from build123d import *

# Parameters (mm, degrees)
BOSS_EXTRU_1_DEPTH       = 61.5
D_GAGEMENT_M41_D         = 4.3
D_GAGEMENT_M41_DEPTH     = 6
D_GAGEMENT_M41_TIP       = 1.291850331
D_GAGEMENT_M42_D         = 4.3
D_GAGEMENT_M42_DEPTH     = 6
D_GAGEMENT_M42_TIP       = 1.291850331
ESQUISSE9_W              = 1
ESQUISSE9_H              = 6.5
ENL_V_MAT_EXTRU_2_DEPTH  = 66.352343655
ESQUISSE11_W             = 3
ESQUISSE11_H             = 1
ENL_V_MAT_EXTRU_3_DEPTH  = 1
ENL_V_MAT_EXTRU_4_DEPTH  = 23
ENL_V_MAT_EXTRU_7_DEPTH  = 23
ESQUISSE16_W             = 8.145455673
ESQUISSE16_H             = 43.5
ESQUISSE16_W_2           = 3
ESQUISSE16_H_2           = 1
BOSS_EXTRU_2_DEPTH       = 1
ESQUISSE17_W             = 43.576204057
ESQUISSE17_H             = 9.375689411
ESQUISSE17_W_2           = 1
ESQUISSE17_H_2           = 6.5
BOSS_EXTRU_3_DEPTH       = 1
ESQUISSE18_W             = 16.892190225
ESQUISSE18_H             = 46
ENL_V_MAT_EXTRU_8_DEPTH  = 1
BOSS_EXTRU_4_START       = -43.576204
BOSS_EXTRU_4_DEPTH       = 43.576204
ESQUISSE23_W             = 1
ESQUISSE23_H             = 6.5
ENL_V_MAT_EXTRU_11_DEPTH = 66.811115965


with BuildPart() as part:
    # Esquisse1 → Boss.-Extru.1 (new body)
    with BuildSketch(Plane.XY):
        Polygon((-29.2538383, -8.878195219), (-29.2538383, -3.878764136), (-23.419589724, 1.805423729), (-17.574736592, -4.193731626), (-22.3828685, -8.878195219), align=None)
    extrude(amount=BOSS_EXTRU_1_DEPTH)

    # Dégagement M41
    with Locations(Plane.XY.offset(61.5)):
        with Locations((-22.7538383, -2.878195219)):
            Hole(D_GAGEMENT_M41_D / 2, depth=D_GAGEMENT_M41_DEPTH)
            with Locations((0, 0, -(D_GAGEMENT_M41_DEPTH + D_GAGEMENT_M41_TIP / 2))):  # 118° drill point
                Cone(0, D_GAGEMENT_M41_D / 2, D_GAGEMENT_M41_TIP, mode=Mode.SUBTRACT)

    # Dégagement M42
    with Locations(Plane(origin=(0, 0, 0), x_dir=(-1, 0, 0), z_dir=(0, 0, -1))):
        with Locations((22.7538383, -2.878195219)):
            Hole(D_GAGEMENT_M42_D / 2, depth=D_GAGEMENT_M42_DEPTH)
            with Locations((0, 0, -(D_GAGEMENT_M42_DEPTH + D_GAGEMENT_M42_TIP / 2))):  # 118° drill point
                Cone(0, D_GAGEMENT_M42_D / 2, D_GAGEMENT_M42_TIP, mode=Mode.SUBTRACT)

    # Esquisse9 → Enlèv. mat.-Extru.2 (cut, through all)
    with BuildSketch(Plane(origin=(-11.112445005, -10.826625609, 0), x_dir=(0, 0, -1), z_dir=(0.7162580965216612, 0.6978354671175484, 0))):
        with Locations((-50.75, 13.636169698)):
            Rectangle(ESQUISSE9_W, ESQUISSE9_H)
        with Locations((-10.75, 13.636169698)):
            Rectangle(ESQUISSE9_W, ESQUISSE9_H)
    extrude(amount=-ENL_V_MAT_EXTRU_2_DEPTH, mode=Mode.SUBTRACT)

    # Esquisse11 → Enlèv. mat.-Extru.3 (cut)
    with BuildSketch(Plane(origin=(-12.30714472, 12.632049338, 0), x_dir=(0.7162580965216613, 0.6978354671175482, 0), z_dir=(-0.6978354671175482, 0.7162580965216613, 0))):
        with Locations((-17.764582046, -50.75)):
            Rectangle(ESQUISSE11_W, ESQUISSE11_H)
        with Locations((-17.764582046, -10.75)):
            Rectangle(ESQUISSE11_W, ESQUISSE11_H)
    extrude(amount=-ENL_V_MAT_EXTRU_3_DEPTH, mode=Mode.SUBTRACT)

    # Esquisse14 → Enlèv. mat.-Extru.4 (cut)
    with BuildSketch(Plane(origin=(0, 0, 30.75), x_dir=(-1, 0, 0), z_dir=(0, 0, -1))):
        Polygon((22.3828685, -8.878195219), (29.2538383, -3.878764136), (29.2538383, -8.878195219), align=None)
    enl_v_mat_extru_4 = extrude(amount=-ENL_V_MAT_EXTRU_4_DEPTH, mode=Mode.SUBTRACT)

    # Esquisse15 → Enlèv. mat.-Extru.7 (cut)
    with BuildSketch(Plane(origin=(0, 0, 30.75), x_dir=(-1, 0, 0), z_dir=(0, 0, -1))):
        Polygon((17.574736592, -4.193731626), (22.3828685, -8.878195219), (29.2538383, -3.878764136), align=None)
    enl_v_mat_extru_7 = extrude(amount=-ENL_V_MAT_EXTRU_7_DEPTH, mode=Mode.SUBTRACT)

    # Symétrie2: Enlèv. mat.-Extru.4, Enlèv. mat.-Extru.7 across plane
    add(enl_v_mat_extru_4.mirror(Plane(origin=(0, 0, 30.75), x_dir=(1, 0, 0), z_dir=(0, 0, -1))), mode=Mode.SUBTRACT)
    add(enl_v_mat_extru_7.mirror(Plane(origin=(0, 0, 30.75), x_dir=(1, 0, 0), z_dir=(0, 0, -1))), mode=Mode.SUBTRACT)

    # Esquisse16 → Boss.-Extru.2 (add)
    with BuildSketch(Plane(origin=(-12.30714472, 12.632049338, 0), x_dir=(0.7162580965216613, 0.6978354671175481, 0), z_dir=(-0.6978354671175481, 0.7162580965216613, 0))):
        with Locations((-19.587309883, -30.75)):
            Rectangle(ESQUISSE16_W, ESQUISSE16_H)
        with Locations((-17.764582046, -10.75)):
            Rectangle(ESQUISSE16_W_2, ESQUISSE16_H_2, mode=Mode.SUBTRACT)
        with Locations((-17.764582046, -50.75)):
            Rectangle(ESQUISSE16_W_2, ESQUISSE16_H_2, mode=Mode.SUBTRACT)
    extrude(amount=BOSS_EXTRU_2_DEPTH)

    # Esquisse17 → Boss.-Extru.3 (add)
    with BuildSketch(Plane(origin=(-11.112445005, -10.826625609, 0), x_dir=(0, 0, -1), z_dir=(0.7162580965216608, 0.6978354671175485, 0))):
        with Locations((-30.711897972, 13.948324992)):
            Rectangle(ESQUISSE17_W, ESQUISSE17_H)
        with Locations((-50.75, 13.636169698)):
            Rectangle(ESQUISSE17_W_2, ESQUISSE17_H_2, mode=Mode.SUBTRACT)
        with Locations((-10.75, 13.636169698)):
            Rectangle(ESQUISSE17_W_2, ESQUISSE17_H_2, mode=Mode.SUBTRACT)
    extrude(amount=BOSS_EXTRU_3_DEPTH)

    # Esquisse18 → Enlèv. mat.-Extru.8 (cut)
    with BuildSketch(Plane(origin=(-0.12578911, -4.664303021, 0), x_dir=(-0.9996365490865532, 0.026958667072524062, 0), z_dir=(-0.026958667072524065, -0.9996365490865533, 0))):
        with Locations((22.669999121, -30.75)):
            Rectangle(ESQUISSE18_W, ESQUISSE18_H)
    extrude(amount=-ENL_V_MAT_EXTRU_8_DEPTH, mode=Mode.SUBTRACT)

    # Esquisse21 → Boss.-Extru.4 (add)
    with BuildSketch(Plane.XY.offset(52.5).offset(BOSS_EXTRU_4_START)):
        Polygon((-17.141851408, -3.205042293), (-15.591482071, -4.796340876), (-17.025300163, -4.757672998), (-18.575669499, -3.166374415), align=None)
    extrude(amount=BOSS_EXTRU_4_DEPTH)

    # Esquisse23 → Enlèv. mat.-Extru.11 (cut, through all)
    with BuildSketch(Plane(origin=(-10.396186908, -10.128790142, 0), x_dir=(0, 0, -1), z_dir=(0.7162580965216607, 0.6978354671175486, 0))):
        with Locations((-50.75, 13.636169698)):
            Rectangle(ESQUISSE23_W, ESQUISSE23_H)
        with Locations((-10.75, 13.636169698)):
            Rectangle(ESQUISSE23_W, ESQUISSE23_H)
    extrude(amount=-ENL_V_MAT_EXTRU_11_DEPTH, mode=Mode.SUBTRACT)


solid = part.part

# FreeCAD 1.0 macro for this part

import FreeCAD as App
import Part
import Sketcher

V = App.Vector


def add_polygon(sketch, points):
    """Adds a closed chain of lines whose ends are joined by coincident constraints."""
    first, n = sketch.GeometryCount, len(points)
    for a, b in zip(points, points[1:] + points[:1]):
        sketch.addGeometry(Part.LineSegment(App.Vector(*a, 0), App.Vector(*b, 0)), False)
    for i in range(n):
        sketch.addConstraint(Sketcher.Constraint("Coincident", first + i, 2, first + (i + 1) % n, 1))

doc = App.newDocument("Part")
body = doc.addObject("PartDesign::Body", "Body")

# Sketch on XY plane
sketch1 = doc.addObject("Sketcher::SketchObject", "Sketch")
body.addObject(sketch1)
sketch1.AttachmentSupport = (doc.XY_Plane, [""])
sketch1.MapMode = "FlatFace"
add_polygon(sketch1, [(-29.3, -3.9), (-29.3, -8.9), (-22.4, -8.9), (-17.6, -4.2), (-23.4, 1.8)])  # lines 0-4
sketch1.addConstraint([
    Sketcher.Constraint("Vertical", 0),
    Sketcher.Constraint("Horizontal", 1),
    Sketcher.Constraint("Perpendicular", 2, 3),
    Sketcher.Constraint("Perpendicular", 3, 4),
    Sketcher.Constraint("DistanceX", 1, 1, 1, 2, 6.87097),
    Sketcher.Constraint("DistanceY", 0, 2, 0, 1, 4.999431),
    Sketcher.Constraint("DistanceX", 0, 2, 2, 2, 11.679102),
    Sketcher.Constraint("Distance", 2, 6.712848),
    Sketcher.Constraint("DistanceX", 0, 2, -1, 1, 29.253838),
    Sketcher.Constraint("DistanceY", 2, 2, -1, 1, 4.193732),
])
pad1 = doc.addObject("PartDesign::Pad", "Pad")
body.addObject(pad1)
pad1.Profile = sketch1
pad1.Length = 61.5

# Sketch on XY plane
sketch2 = doc.addObject("Sketcher::SketchObject", "Sketch001")
body.addObject(sketch2)
sketch2.AttachmentSupport = (doc.XY_Plane, [""])
sketch2.MapMode = "FlatFace"
sketch2.AttachmentOffset = App.Placement(V(0, 0, 61.5), App.Rotation())
sketch2.addGeometry(Part.Circle(V(-22.8, -2.9, 0), V(0, 0, 1), 2.1), False)
sketch2.addConstraint([
    Sketcher.Constraint("Diameter", 0, 4.3),
    Sketcher.Constraint("DistanceX", 0, 3, -1, 1, 22.753838),
    Sketcher.Constraint("DistanceY", 0, 3, -1, 1, 2.878195),
])
doc.recompute()
hole = doc.addObject("PartDesign::Hole", "Hole")
body.addObject(hole)
hole.Profile = sketch2
hole.ThreadType = "None"
hole.Diameter = 4.3
hole.DepthType = "Dimension"
hole.Depth = 6
hole.DrillPoint = "Angled"
hole.DrillPointAngle = 118

# Sketch on XY plane
sketch3 = doc.addObject("Sketcher::SketchObject", "Sketch002")
body.addObject(sketch3)
sketch3.AttachmentSupport = (doc.XY_Plane, [""])
sketch3.MapMode = "FlatFace"
sketch3.addGeometry(Part.Circle(V(-22.8, -2.9, 0), V(0, 0, 1), 2.1), False)
sketch3.addConstraint([
    Sketcher.Constraint("Diameter", 0, 4.3),
    Sketcher.Constraint("DistanceX", 0, 3, -1, 1, 22.753838),
    Sketcher.Constraint("DistanceY", 0, 3, -1, 1, 2.878195),
])
doc.recompute()
hole2 = doc.addObject("PartDesign::Hole", "Hole001")
body.addObject(hole2)
hole2.Profile = sketch3
hole2.ThreadType = "None"
hole2.Diameter = 4.3
hole2.DepthType = "Dimension"
hole2.Depth = 6
hole2.DrillPoint = "Angled"
hole2.DrillPointAngle = 118
hole2.Reversed = True

# Sketch on an angled plane
sketch4 = doc.addObject("Sketcher::SketchObject", "Sketch003")
body.addObject(sketch4)
sketch4.Placement = App.Placement(V(-11.112445, -10.826626, 0), App.Rotation(V(0, 0, -1), V(-0.697835467, 0.716258097, 0), V(0.716258097, 0.697835467, 0), "ZXY"))
add_polygon(sketch4, [(-51.2, 16.9), (-51.2, 10.4), (-50.2, 10.4), (-50.2, 16.9)])  # lines 0-3
add_polygon(sketch4, [(-11.2, 16.9), (-11.2, 10.4), (-10.2, 10.4), (-10.2, 16.9)])  # lines 4-7
sketch4.addConstraint([
    Sketcher.Constraint("Vertical", 0),
    Sketcher.Constraint("Horizontal", 1),
    Sketcher.Constraint("Vertical", 2),
    Sketcher.Constraint("Horizontal", 3),
    Sketcher.Constraint("Vertical", 4),
    Sketcher.Constraint("Horizontal", 5),
    Sketcher.Constraint("Vertical", 6),
    Sketcher.Constraint("Horizontal", 7),
    Sketcher.Constraint("Horizontal", 1, 2, 4, 2),
    Sketcher.Constraint("Horizontal", 3, 2, 6, 2),
    Sketcher.Constraint("Equal", 3, 5),
    Sketcher.Constraint("DistanceX", 1, 1, 1, 2, 1.0),
    Sketcher.Constraint("DistanceY", 0, 2, 0, 1, 6.5),
    Sketcher.Constraint("DistanceX", 1, 2, 4, 2, 39.0),
    Sketcher.Constraint("DistanceX", 0, 2, -1, 1, 51.25),
    Sketcher.Constraint("DistanceY", -1, 1, 0, 2, 10.38617),
])
pocket1 = doc.addObject("PartDesign::Pocket", "Pocket")
body.addObject(pocket1)
pocket1.Profile = sketch4
pocket1.Type = "ThroughAll"

# Sketch on an angled plane
sketch5 = doc.addObject("Sketcher::SketchObject", "Sketch004")
body.addObject(sketch5)
sketch5.Placement = App.Placement(V(-12.307145, 12.632049, 0), App.Rotation(V(0.716258097, 0.697835467, 0), V(0, 0, -1.000000001), V(-0.697835467, 0.716258097, 0), "ZXY"))
add_polygon(sketch5, [(-19.3, -50.3), (-19.3, -51.3), (-16.3, -51.3), (-16.3, -50.3)])  # lines 0-3
add_polygon(sketch5, [(-19.3, -10.3), (-19.3, -11.3), (-16.3, -11.3), (-16.3, -10.3)])  # lines 4-7
sketch5.addConstraint([
    Sketcher.Constraint("Vertical", 0),
    Sketcher.Constraint("Horizontal", 1),
    Sketcher.Constraint("Vertical", 2),
    Sketcher.Constraint("Horizontal", 3),
    Sketcher.Constraint("Vertical", 4),
    Sketcher.Constraint("Horizontal", 5),
    Sketcher.Constraint("Vertical", 6),
    Sketcher.Constraint("Horizontal", 7),
    Sketcher.Constraint("Vertical", 3, 2, 4, 2),
    Sketcher.Constraint("Vertical", 2, 2, 5, 2),
    Sketcher.Constraint("Equal", 2, 4),
    Sketcher.Constraint("DistanceX", 1, 1, 1, 2, 3.0),
    Sketcher.Constraint("DistanceY", 0, 2, 0, 1, 1.0),
    Sketcher.Constraint("DistanceY", 3, 2, 4, 2, 39.0),
    Sketcher.Constraint("DistanceY", 0, 2, -1, 1, 51.25),
    Sketcher.Constraint("DistanceX", 0, 2, -1, 1, 19.264582),
])
pocket2 = doc.addObject("PartDesign::Pocket", "Pocket001")
body.addObject(pocket2)
pocket2.Profile = sketch5
pocket2.Length = 1

# Sketch on XY plane
sketch6 = doc.addObject("Sketcher::SketchObject", "Sketch005")
body.addObject(sketch6)
sketch6.AttachmentSupport = (doc.XY_Plane, [""])
sketch6.MapMode = "FlatFace"
sketch6.AttachmentOffset = App.Placement(V(0, 0, 30.75), App.Rotation())
add_polygon(sketch6, [(-29.3, -3.9), (-22.4, -8.9), (-29.3, -8.9)])  # lines 0-2
sketch6.addConstraint([
    Sketcher.Constraint("Horizontal", 1),
    Sketcher.Constraint("Vertical", 2),
    Sketcher.Constraint("DistanceX", 1, 2, 1, 1, 6.87097),
    Sketcher.Constraint("DistanceY", 2, 1, 2, 2, 4.999431),
    Sketcher.Constraint("DistanceX", 0, 2, -1, 1, 22.382869),
    Sketcher.Constraint("DistanceY", 0, 2, -1, 1, 8.878195),
])
pocket3 = doc.addObject("PartDesign::Pocket", "Pocket002")
body.addObject(pocket3)
pocket3.Profile = sketch6
pocket3.Length = 23
pocket3.Reversed = True

# Sketch on XY plane
sketch7 = doc.addObject("Sketcher::SketchObject", "Sketch006")
body.addObject(sketch7)
sketch7.AttachmentSupport = (doc.XY_Plane, [""])
sketch7.MapMode = "FlatFace"
sketch7.AttachmentOffset = App.Placement(V(0, 0, 30.75), App.Rotation())
add_polygon(sketch7, [(-17.574737, -4.193732), (-22.382869, -8.878195), (-29.253838, -3.878764)])  # lines 0-2
sketch7.addConstraint([
    Sketcher.Constraint("DistanceX", 1, 2, 2, 2, 11.679102),
    Sketcher.Constraint("Distance", 0, 6.712848),
    Sketcher.Constraint("Distance", 2, 11.683348),
    Sketcher.Constraint("DistanceX", 0, 2, -1, 1, 22.382869),
    Sketcher.Constraint("DistanceX", 1, 2, -1, 1, 29.253838),
    Sketcher.Constraint("DistanceY", 2, 2, -1, 1, 4.193732),
])
pocket4 = doc.addObject("PartDesign::Pocket", "Pocket003")
body.addObject(pocket4)
pocket4.Profile = sketch7
pocket4.Length = 23
pocket4.Reversed = True
doc.recompute()

datumplane = doc.addObject("PartDesign::Plane", "DatumPlane")
body.addObject(datumplane)
datumplane.AttachmentSupport = (doc.XY_Plane, [""])
datumplane.MapMode = "FlatFace"
datumplane.AttachmentOffset = App.Placement(V(0, 0, 30.75), App.Rotation())
mirrored = doc.addObject("PartDesign::Mirrored", "Mirrored")
body.addObject(mirrored)
mirrored.Originals = [pocket3, pocket4]
mirrored.MirrorPlane = (datumplane, [""])
body.Tip = mirrored

# Sketch on an angled plane
sketch8 = doc.addObject("Sketcher::SketchObject", "Sketch007")
body.addObject(sketch8)
sketch8.Placement = App.Placement(V(-12.307145, 12.632049, 0), App.Rotation(V(0.716258097, 0.697835467, 0), V(0, 0, -1.000000001), V(-0.697835467, 0.716258097, 0), "ZXY"))
add_polygon(sketch8, [(-23.7, -9), (-23.7, -52.5), (-15.5, -52.5), (-15.5, -9)])  # lines 0-3
add_polygon(sketch8, [(-16.3, -51.3), (-19.3, -51.3), (-19.3, -50.3), (-16.3, -50.3)])  # lines 4-7
add_polygon(sketch8, [(-16.3, -11.3), (-19.3, -11.3), (-19.3, -10.3), (-16.3, -10.3)])  # lines 8-11
sketch8.addConstraint([
    Sketcher.Constraint("Vertical", 0),
    Sketcher.Constraint("Horizontal", 1),
    Sketcher.Constraint("Vertical", 2),
    Sketcher.Constraint("Horizontal", 3),
    Sketcher.Constraint("Horizontal", 4),
    Sketcher.Constraint("Vertical", 5),
    Sketcher.Constraint("Horizontal", 6),
    Sketcher.Constraint("Vertical", 7),
    Sketcher.Constraint("Horizontal", 8),
    Sketcher.Constraint("Vertical", 9),
    Sketcher.Constraint("Horizontal", 10),
    Sketcher.Constraint("Vertical", 11),
    Sketcher.Constraint("Vertical", 5, 2, 8, 2),
    Sketcher.Constraint("Vertical", 7, 2, 10, 2),
    Sketcher.Constraint("Equal", 7, 9),
    Sketcher.Constraint("DistanceX", 4, 2, 4, 1, 3.0),
    Sketcher.Constraint("DistanceY", 5, 1, 5, 2, 1.0),
    Sketcher.Constraint("DistanceY", 0, 2, 0, 1, 43.5),
    Sketcher.Constraint("DistanceY", 2, 2, -1, 1, 9.0),
    Sketcher.Constraint("DistanceY", 5, 2, 8, 2, 39.0),
    Sketcher.Constraint("DistanceY", 4, 2, -1, 1, 51.25),
    Sketcher.Constraint("DistanceX", 4, 2, 1, 2, 3.75),
    Sketcher.Constraint("DistanceX", 1, 1, 1, 2, 8.145456),
    Sketcher.Constraint("DistanceX", 0, 2, -1, 1, 23.660038),
])
pad2 = doc.addObject("PartDesign::Pad", "Pad001")
body.addObject(pad2)
pad2.Profile = sketch8
pad2.Length = 1

# Sketch on an angled plane
sketch9 = doc.addObject("Sketcher::SketchObject", "Sketch008")
body.addObject(sketch9)
sketch9.Placement = App.Placement(V(-11.112445, -10.826626, 0), App.Rotation(V(0, 0, -1), V(-0.697835467, 0.716258097, 0), V(0.716258097, 0.697835467, 0), "ZXY"))
add_polygon(sketch9, [(-52.5, 18.6), (-52.5, 9.3), (-8.9, 9.3), (-8.9, 18.6)])  # lines 0-3
add_polygon(sketch9, [(-50.2, 10.4), (-51.2, 10.4), (-51.2, 16.9), (-50.2, 16.9)])  # lines 4-7
add_polygon(sketch9, [(-10.2, 10.4), (-11.2, 10.4), (-11.2, 16.9), (-10.2, 16.9)])  # lines 8-11
sketch9.addConstraint([
    Sketcher.Constraint("Vertical", 0),
    Sketcher.Constraint("Horizontal", 1),
    Sketcher.Constraint("Vertical", 2),
    Sketcher.Constraint("Horizontal", 3),
    Sketcher.Constraint("Horizontal", 4),
    Sketcher.Constraint("Vertical", 5),
    Sketcher.Constraint("Horizontal", 6),
    Sketcher.Constraint("Vertical", 7),
    Sketcher.Constraint("Horizontal", 8),
    Sketcher.Constraint("Vertical", 9),
    Sketcher.Constraint("Horizontal", 10),
    Sketcher.Constraint("Vertical", 11),
    Sketcher.Constraint("Horizontal", 7, 2, 8, 2),
    Sketcher.Constraint("Horizontal", 6, 2, 9, 2),
    Sketcher.Constraint("Equal", 6, 8),
    Sketcher.Constraint("DistanceX", 4, 2, 4, 1, 1.0),
    Sketcher.Constraint("DistanceY", 5, 1, 5, 2, 6.5),
    Sketcher.Constraint("DistanceX", 7, 2, 8, 2, 39.0),
    Sketcher.Constraint("DistanceX", 0, 2, -1, 1, 52.5),
    Sketcher.Constraint("DistanceX", 4, 2, -1, 1, 51.25),
    Sketcher.Constraint("DistanceY", 4, 2, 3, 2, 8.25),
    Sketcher.Constraint("DistanceY", 0, 2, 0, 1, 9.375689),
    Sketcher.Constraint("DistanceX", 1, 1, 1, 2, 43.576204),
    Sketcher.Constraint("DistanceY", -1, 1, 0, 2, 9.26048),
])
pad3 = doc.addObject("PartDesign::Pad", "Pad002")
body.addObject(pad3)
pad3.Profile = sketch9
pad3.Length = 1

# Sketch on an angled plane
sketch10 = doc.addObject("Sketcher::SketchObject", "Sketch009")
body.addObject(sketch10)
sketch10.Placement = App.Placement(V(-0.125789, -4.664303, 0), App.Rotation(V(-0.999636549, 0.026958667, 0), V(0, 0, -1), V(-0.026958667, -0.999636549, 0), "ZXY"))
add_polygon(sketch10, [(14, -8), (14, -54), (31, -54), (31, -8)])  # lines 0-3
sketch10.addConstraint([
    Sketcher.Constraint("Vertical", 0),
    Sketcher.Constraint("Horizontal", 1),
    Sketcher.Constraint("Vertical", 2),
    Sketcher.Constraint("Horizontal", 3),
    Sketcher.Constraint("DistanceY", 0, 2, 0, 1, 46.0),
    Sketcher.Constraint("DistanceY", 0, 2, -1, 1, 53.75),
    Sketcher.Constraint("DistanceX", 1, 1, 1, 2, 16.89219),
    Sketcher.Constraint("DistanceX", -1, 1, 0, 2, 14.223904),
])
pocket5 = doc.addObject("PartDesign::Pocket", "Pocket004")
body.addObject(pocket5)
pocket5.Profile = sketch10
pocket5.Length = 1

# Sketch on XY plane
sketch11 = doc.addObject("Sketcher::SketchObject", "Sketch010")
body.addObject(sketch11)
sketch11.AttachmentSupport = (doc.XY_Plane, [""])
sketch11.MapMode = "FlatFace"
sketch11.AttachmentOffset = App.Placement(V(0, 0, 8.923796), App.Rotation())
add_polygon(sketch11, [(-15.591482, -4.796341), (-17.141851, -3.205042), (-18.575669, -3.166374), (-17.0253, -4.757673)])  # lines 0-3
sketch11.addConstraint([
    Sketcher.Constraint("Parallel", 0, 2),
    Sketcher.Constraint("Parallel", 1, 3),
    Sketcher.Constraint("DistanceX", 2, 2, -1, 1, 17.0253),
    Sketcher.Constraint("DistanceY", 2, 2, 1, 2, 1.591299),
    Sketcher.Constraint("Distance", 1, 1.434339),
    Sketcher.Constraint("DistanceX", 0, 2, -1, 1, 17.141851),
    Sketcher.Constraint("DistanceX", 1, 2, -1, 1, 18.575669),
    Sketcher.Constraint("DistanceY", 3, 2, -1, 1, 4.796341),
])
pad4 = doc.addObject("PartDesign::Pad", "Pad003")
body.addObject(pad4)
pad4.Profile = sketch11
pad4.Length = 43.576204

# Sketch on an angled plane
sketch12 = doc.addObject("Sketcher::SketchObject", "Sketch011")
body.addObject(sketch12)
sketch12.Placement = App.Placement(V(-10.396187, -10.12879, 0), App.Rotation(V(0, 0, -1), V(-0.697835467, 0.716258097, 0), V(0.716258097, 0.697835467, 0), "ZXY"))
add_polygon(sketch12, [(-51.2, 16.9), (-51.2, 10.4), (-50.2, 10.4), (-50.2, 16.9)])  # lines 0-3
add_polygon(sketch12, [(-11.2, 16.9), (-11.2, 10.4), (-10.2, 10.4), (-10.2, 16.9)])  # lines 4-7
sketch12.addConstraint([
    Sketcher.Constraint("Vertical", 0),
    Sketcher.Constraint("Horizontal", 1),
    Sketcher.Constraint("Vertical", 2),
    Sketcher.Constraint("Horizontal", 3),
    Sketcher.Constraint("Vertical", 4),
    Sketcher.Constraint("Horizontal", 5),
    Sketcher.Constraint("Vertical", 6),
    Sketcher.Constraint("Horizontal", 7),
    Sketcher.Constraint("Horizontal", 1, 2, 4, 2),
    Sketcher.Constraint("Horizontal", 3, 2, 6, 2),
    Sketcher.Constraint("Equal", 3, 5),
    Sketcher.Constraint("DistanceX", 1, 1, 1, 2, 1.0),
    Sketcher.Constraint("DistanceY", 0, 2, 0, 1, 6.5),
    Sketcher.Constraint("DistanceX", 1, 2, 4, 2, 39.0),
    Sketcher.Constraint("DistanceX", 0, 2, -1, 1, 51.25),
    Sketcher.Constraint("DistanceY", -1, 1, 0, 2, 10.38617),
])
pocket6 = doc.addObject("PartDesign::Pocket", "Pocket005")
body.addObject(pocket6)
pocket6.Profile = sketch12
pocket6.Type = "ThroughAll"

doc.recompute()
